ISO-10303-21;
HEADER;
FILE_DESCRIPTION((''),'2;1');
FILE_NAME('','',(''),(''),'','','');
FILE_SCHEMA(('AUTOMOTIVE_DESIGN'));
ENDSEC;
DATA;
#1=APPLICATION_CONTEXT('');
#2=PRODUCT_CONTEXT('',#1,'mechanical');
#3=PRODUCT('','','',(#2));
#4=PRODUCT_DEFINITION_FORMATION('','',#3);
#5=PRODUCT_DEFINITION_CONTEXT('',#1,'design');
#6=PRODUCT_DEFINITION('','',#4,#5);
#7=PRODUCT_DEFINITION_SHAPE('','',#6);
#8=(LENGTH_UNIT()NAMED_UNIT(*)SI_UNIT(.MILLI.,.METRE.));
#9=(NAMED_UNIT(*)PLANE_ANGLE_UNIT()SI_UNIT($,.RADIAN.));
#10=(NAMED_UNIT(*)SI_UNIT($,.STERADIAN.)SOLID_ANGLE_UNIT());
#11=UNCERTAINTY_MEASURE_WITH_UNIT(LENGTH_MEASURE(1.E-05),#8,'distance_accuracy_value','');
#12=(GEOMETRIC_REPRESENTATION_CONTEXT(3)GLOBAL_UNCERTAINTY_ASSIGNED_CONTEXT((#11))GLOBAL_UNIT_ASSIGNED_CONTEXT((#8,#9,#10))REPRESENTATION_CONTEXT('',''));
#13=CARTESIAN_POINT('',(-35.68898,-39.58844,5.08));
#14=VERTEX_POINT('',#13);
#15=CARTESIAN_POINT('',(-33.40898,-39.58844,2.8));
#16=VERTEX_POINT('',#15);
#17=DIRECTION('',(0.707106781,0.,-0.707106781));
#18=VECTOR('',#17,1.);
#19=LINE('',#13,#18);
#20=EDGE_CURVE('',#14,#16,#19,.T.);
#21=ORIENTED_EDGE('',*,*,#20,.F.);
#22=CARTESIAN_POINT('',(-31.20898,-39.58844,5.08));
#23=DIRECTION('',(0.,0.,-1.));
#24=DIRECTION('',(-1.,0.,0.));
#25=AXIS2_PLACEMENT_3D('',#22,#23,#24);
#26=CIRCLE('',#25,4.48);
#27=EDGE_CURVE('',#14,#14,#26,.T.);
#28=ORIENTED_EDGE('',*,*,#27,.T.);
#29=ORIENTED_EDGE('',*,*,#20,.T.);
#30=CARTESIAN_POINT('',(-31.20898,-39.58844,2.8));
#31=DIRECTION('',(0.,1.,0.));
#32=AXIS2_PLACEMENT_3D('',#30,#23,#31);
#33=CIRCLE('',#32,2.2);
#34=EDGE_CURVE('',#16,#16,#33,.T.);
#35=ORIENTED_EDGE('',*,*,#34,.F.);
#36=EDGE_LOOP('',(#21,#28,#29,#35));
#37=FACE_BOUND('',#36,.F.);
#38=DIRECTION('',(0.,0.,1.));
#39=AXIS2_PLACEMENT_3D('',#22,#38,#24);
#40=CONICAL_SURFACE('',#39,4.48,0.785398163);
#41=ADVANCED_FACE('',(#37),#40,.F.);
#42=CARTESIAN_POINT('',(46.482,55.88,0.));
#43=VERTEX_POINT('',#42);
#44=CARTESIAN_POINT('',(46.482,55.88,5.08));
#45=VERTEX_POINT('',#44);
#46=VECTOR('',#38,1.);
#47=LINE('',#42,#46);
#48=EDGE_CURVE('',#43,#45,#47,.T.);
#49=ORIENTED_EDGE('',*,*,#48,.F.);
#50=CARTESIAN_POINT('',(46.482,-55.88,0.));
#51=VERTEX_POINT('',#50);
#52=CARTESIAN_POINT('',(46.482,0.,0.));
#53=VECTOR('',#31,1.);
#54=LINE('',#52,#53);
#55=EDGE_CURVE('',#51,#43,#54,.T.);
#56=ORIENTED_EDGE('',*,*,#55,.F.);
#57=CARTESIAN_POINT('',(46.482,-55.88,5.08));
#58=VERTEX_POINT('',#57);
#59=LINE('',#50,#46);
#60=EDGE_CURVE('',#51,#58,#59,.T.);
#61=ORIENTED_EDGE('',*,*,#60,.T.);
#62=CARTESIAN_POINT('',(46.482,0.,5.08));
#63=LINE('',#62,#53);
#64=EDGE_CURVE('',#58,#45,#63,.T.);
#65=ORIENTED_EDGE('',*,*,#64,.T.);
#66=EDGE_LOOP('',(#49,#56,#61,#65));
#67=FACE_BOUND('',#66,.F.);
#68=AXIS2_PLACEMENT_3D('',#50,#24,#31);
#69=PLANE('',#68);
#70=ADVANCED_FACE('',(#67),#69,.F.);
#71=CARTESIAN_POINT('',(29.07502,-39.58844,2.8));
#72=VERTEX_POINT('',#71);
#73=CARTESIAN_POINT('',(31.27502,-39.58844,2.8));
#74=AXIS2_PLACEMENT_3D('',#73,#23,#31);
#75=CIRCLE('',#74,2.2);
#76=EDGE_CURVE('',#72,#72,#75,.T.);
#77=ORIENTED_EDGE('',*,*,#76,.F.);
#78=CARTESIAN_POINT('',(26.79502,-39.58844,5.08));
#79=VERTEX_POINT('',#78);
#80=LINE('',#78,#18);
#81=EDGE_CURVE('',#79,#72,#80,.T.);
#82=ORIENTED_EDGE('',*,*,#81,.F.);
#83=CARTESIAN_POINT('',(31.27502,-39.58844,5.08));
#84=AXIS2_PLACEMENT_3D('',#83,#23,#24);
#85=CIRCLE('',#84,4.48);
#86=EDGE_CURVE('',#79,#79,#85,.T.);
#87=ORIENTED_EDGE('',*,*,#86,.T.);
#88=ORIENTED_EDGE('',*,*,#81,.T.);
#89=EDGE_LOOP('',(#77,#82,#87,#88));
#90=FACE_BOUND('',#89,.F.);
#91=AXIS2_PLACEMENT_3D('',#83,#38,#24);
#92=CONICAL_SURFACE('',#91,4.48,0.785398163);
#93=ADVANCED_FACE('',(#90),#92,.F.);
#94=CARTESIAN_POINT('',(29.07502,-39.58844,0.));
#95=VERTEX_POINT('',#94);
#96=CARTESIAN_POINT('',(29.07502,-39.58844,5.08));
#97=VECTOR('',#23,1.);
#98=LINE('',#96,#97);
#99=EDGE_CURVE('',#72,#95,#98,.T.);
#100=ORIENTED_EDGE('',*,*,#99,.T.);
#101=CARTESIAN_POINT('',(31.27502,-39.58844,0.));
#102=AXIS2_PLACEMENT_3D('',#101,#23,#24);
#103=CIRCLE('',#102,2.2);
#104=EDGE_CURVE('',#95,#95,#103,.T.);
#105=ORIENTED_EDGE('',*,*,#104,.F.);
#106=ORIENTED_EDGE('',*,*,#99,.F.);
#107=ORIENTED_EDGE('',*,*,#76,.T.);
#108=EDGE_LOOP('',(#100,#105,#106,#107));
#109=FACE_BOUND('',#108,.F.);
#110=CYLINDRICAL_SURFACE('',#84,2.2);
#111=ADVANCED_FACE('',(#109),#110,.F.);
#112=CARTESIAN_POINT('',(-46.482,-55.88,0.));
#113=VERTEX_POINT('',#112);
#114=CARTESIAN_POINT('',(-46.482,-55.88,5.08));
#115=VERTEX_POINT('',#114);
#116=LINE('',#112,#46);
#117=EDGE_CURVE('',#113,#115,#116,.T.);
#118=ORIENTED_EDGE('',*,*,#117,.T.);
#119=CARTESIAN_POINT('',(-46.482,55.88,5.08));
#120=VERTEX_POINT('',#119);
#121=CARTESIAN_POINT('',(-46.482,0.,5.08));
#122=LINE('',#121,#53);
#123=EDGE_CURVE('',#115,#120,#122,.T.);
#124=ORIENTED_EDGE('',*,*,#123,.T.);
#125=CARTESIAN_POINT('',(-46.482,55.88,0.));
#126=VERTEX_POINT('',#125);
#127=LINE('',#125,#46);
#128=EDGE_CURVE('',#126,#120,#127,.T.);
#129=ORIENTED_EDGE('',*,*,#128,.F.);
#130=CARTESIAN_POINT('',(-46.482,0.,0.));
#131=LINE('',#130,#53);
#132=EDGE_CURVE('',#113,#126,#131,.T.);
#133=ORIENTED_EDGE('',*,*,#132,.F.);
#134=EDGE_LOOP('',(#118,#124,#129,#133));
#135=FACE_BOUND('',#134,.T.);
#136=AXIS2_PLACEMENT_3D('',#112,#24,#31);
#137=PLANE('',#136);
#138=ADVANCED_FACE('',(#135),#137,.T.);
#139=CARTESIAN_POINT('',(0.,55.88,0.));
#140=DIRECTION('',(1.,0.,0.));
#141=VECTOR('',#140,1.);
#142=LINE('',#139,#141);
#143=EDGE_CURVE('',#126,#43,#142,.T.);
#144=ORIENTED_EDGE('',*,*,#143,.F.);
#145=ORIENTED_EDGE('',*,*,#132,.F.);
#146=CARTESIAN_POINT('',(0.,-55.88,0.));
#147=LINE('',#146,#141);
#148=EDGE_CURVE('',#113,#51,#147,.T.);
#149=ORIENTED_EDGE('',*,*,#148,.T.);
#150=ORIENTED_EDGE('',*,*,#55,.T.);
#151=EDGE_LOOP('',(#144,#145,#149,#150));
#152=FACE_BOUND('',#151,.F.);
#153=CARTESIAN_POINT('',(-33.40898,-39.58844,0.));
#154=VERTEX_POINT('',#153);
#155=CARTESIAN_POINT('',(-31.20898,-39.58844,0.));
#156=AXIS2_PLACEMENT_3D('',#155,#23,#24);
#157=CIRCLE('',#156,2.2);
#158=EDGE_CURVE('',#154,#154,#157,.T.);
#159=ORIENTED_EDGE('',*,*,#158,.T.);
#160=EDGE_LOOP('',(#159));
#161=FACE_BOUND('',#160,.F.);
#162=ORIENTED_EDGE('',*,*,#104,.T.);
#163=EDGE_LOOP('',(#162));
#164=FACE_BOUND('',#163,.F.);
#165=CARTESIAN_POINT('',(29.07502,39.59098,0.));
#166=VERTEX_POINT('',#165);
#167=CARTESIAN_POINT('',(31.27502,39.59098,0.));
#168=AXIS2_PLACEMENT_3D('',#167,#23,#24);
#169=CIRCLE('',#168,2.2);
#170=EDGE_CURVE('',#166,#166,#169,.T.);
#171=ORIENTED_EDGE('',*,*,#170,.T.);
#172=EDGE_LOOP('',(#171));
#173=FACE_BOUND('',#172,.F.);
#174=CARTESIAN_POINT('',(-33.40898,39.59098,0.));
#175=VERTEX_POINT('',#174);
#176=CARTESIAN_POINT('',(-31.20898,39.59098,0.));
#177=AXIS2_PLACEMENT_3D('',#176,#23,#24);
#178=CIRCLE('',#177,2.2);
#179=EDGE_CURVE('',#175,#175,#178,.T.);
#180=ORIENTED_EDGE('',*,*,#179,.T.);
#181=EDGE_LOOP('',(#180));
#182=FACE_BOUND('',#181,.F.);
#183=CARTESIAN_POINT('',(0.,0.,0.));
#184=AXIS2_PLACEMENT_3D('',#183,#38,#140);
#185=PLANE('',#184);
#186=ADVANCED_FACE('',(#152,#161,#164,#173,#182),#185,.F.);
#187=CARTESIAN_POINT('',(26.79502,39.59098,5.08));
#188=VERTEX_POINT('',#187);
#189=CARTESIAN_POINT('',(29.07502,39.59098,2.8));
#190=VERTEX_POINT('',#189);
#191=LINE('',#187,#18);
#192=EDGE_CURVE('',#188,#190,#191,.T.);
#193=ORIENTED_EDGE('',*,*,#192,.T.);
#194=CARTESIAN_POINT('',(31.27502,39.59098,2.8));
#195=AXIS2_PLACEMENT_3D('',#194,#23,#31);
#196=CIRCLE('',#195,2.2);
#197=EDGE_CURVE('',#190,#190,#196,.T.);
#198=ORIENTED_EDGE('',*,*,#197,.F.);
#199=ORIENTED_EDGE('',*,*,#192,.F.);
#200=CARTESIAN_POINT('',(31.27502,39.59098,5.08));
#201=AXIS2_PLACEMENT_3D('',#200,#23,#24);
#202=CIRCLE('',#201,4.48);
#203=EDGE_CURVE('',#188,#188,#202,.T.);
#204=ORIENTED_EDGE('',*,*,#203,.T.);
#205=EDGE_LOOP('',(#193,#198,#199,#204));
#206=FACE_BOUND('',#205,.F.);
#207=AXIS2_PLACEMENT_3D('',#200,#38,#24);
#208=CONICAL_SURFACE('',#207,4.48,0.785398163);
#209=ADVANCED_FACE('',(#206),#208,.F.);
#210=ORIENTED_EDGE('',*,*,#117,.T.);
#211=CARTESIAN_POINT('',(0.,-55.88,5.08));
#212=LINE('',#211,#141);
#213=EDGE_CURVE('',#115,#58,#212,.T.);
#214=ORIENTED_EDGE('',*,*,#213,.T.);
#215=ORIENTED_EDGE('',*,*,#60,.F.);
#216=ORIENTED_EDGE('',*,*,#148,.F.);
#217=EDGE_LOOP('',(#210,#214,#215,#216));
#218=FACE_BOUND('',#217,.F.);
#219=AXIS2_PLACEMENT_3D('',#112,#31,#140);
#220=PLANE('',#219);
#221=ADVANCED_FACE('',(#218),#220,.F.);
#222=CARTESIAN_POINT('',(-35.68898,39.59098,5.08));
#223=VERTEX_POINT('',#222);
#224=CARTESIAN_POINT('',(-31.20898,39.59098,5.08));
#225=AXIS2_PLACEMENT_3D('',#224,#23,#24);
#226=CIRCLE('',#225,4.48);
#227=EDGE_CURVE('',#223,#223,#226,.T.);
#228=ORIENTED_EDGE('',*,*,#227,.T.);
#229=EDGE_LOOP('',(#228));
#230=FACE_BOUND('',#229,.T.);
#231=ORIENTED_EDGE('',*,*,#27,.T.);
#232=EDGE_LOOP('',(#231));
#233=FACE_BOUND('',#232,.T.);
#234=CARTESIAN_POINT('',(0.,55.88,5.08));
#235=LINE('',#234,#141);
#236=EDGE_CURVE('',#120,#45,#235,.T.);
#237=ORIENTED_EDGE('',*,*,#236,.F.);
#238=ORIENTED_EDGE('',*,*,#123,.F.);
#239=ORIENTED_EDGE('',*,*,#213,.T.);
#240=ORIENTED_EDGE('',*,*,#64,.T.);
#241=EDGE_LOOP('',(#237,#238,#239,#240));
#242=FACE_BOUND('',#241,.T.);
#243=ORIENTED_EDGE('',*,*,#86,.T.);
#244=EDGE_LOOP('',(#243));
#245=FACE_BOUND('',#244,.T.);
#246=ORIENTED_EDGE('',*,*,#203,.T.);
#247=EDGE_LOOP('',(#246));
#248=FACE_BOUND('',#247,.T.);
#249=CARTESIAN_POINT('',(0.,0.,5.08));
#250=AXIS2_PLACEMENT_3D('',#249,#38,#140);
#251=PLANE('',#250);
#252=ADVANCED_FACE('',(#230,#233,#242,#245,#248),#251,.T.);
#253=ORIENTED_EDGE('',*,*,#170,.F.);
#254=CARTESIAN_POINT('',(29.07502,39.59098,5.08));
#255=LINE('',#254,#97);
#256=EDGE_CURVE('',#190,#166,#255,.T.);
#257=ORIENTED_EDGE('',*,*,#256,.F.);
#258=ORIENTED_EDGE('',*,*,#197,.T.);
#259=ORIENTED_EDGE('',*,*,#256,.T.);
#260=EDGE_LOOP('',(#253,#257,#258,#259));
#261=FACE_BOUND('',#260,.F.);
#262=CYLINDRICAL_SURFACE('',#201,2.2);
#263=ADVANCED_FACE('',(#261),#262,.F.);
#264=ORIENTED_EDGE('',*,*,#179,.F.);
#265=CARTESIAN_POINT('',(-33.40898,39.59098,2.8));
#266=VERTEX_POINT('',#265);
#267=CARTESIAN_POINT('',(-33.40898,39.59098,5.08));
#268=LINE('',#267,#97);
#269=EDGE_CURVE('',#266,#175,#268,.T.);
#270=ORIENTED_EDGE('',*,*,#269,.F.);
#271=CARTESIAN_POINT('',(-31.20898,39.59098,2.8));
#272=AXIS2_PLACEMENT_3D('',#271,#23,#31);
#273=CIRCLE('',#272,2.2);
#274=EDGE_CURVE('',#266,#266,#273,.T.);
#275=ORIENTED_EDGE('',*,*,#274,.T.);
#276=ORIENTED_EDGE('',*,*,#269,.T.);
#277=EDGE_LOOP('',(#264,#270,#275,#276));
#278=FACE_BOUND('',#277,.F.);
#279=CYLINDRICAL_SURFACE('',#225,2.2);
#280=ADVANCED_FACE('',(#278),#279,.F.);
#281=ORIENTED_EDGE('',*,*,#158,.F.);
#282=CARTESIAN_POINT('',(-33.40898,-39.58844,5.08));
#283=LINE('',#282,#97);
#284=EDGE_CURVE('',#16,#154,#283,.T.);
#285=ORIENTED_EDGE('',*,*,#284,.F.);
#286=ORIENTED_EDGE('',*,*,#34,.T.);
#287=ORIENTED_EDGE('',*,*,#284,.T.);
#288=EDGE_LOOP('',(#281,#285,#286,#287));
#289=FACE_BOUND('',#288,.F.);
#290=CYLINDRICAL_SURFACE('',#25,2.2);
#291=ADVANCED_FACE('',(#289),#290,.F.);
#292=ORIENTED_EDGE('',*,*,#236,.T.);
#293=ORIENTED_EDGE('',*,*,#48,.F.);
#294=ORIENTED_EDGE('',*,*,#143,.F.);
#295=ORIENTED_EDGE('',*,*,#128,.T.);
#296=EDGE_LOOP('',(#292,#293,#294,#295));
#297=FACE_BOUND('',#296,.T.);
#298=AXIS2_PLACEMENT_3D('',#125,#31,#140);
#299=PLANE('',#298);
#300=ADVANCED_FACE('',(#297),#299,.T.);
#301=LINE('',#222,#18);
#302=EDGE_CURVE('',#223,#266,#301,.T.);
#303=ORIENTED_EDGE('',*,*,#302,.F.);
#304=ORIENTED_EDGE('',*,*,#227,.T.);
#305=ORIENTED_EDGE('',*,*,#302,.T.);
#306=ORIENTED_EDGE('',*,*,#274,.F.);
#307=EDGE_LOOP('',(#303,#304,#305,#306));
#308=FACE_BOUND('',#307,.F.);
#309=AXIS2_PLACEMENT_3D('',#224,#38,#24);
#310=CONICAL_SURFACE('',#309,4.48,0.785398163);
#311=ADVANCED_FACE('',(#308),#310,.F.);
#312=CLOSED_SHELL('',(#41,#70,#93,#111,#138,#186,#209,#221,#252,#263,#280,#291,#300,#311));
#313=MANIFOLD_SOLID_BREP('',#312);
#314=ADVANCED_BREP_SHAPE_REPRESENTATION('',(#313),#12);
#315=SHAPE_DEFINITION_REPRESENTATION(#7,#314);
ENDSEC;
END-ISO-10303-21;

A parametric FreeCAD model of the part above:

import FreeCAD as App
import Part
import Sketcher

V = App.Vector
Q = App.Units.Quantity

doc = App.newDocument("Part")
body = doc.addObject("PartDesign::Body", "Body")

# Sketch on XY plane
sketch1 = body.newObject("Sketcher::SketchObject", "Sketch")
sketch1.AttachmentSupport = (doc.getObject("XY_Plane"), [""])
sketch1.MapMode = "FlatFace"
sketch1.addGeometry(Part.LineSegment(V(-46, 56, 0), V(-46, -56, 0)), False)
sketch1.addGeometry(Part.LineSegment(V(-46, -56, 0), V(46, -56, 0)), False)
sketch1.addGeometry(Part.LineSegment(V(46, -56, 0), V(46, 56, 0)), False)
sketch1.addGeometry(Part.LineSegment(V(46, 56, 0), V(-46, 56, 0)), False)
sketch1.addConstraint(Sketcher.Constraint("Coincident", 0, 2, 1, 1))
sketch1.addConstraint(Sketcher.Constraint("Coincident", 1, 2, 2, 1))
sketch1.addConstraint(Sketcher.Constraint("Coincident", 2, 2, 3, 1))
sketch1.addConstraint(Sketcher.Constraint("Coincident", 3, 2, 0, 1))
sketch1.addConstraint(Sketcher.Constraint("Vertical", 0))
sketch1.addConstraint(Sketcher.Constraint("Horizontal", 1))
sketch1.addConstraint(Sketcher.Constraint("Vertical", 2))
sketch1.addConstraint(Sketcher.Constraint("Horizontal", 3))
sketch1.addConstraint(Sketcher.Constraint("Symmetric", 0, 2, 2, 2, -1, 1))
sketch1.addConstraint(Sketcher.Constraint("DistanceY", 0, 2, 0, 1, Q("4.4 in")))
sketch1.addConstraint(Sketcher.Constraint("DistanceX", 1, 1, 1, 2, Q("3.66 in")))
pad1 = body.newObject("PartDesign::Pad", "Pad")
pad1.Profile = sketch1
pad1.Length = Q("0.2 in")

# Sketch on XY plane
sketch2 = body.newObject("Sketcher::SketchObject", "Sketch001")
sketch2.AttachmentSupport = (doc.getObject("XY_Plane"), [""])
sketch2.MapMode = "FlatFace"
sketch2.AttachmentOffset = App.Placement(V(0, 0, 0.2 * 25.4), App.Rotation())
sketch2.addGeometry(Part.Circle(V(-31.2, 39.6, 0), V(0, 0, 1), 2.2), False)
sketch2.addGeometry(Part.Circle(V(-31.2, -39.6, 0), V(0, 0, 1), 2.2), False)
sketch2.addGeometry(Part.Circle(V(31.3, -39.6, 0), V(0, 0, 1), 2.2), False)
sketch2.addGeometry(Part.Circle(V(31.3, 39.6, 0), V(0, 0, 1), 2.2), False)
sketch2.addConstraint(Sketcher.Constraint("Equal", 0, 1))
sketch2.addConstraint(Sketcher.Constraint("Equal", 1, 2))
sketch2.addConstraint(Sketcher.Constraint("Equal", 2, 3))
sketch2.addConstraint(Sketcher.Constraint("Horizontal", 1, 3, 2, 3))
sketch2.addConstraint(Sketcher.Constraint("Horizontal", 0, 3, 3, 3))
sketch2.addConstraint(Sketcher.Constraint("Vertical", 0, 3, 1, 3))
sketch2.addConstraint(Sketcher.Constraint("Vertical", 2, 3, 3, 3))
sketch2.addConstraint(Sketcher.Constraint("Diameter", 0, 4.4))
sketch2.addConstraint(Sketcher.Constraint("DistanceX", 1, 3, 2, 3, Q("2.46 in")))
sketch2.addConstraint(Sketcher.Constraint("DistanceX", 0, 3, -1, 1, Q("1.2287 in")))
sketch2.addConstraint(Sketcher.Constraint("DistanceY", -1, 1, 0, 3, Q("1.5587 in")))
sketch2.addConstraint(Sketcher.Constraint("DistanceY", 1, 3, -1, 1, Q("1.5586 in")))
doc.recompute()
hole = body.newObject("PartDesign::Hole", "Hole")
hole.Profile = sketch2
hole.ThreadType = "None"
hole.Diameter = 4.4
hole.DepthType = "Dimension"
hole.Depth = Q("1.464 in")
hole.DrillPoint = "Angled"
hole.DrillPointAngle = 118
hole.HoleCutType = "Countersink"
hole.HoleCutDiameter = 8.96
hole.HoleCutCountersinkAngle = 90

doc.recompute()
